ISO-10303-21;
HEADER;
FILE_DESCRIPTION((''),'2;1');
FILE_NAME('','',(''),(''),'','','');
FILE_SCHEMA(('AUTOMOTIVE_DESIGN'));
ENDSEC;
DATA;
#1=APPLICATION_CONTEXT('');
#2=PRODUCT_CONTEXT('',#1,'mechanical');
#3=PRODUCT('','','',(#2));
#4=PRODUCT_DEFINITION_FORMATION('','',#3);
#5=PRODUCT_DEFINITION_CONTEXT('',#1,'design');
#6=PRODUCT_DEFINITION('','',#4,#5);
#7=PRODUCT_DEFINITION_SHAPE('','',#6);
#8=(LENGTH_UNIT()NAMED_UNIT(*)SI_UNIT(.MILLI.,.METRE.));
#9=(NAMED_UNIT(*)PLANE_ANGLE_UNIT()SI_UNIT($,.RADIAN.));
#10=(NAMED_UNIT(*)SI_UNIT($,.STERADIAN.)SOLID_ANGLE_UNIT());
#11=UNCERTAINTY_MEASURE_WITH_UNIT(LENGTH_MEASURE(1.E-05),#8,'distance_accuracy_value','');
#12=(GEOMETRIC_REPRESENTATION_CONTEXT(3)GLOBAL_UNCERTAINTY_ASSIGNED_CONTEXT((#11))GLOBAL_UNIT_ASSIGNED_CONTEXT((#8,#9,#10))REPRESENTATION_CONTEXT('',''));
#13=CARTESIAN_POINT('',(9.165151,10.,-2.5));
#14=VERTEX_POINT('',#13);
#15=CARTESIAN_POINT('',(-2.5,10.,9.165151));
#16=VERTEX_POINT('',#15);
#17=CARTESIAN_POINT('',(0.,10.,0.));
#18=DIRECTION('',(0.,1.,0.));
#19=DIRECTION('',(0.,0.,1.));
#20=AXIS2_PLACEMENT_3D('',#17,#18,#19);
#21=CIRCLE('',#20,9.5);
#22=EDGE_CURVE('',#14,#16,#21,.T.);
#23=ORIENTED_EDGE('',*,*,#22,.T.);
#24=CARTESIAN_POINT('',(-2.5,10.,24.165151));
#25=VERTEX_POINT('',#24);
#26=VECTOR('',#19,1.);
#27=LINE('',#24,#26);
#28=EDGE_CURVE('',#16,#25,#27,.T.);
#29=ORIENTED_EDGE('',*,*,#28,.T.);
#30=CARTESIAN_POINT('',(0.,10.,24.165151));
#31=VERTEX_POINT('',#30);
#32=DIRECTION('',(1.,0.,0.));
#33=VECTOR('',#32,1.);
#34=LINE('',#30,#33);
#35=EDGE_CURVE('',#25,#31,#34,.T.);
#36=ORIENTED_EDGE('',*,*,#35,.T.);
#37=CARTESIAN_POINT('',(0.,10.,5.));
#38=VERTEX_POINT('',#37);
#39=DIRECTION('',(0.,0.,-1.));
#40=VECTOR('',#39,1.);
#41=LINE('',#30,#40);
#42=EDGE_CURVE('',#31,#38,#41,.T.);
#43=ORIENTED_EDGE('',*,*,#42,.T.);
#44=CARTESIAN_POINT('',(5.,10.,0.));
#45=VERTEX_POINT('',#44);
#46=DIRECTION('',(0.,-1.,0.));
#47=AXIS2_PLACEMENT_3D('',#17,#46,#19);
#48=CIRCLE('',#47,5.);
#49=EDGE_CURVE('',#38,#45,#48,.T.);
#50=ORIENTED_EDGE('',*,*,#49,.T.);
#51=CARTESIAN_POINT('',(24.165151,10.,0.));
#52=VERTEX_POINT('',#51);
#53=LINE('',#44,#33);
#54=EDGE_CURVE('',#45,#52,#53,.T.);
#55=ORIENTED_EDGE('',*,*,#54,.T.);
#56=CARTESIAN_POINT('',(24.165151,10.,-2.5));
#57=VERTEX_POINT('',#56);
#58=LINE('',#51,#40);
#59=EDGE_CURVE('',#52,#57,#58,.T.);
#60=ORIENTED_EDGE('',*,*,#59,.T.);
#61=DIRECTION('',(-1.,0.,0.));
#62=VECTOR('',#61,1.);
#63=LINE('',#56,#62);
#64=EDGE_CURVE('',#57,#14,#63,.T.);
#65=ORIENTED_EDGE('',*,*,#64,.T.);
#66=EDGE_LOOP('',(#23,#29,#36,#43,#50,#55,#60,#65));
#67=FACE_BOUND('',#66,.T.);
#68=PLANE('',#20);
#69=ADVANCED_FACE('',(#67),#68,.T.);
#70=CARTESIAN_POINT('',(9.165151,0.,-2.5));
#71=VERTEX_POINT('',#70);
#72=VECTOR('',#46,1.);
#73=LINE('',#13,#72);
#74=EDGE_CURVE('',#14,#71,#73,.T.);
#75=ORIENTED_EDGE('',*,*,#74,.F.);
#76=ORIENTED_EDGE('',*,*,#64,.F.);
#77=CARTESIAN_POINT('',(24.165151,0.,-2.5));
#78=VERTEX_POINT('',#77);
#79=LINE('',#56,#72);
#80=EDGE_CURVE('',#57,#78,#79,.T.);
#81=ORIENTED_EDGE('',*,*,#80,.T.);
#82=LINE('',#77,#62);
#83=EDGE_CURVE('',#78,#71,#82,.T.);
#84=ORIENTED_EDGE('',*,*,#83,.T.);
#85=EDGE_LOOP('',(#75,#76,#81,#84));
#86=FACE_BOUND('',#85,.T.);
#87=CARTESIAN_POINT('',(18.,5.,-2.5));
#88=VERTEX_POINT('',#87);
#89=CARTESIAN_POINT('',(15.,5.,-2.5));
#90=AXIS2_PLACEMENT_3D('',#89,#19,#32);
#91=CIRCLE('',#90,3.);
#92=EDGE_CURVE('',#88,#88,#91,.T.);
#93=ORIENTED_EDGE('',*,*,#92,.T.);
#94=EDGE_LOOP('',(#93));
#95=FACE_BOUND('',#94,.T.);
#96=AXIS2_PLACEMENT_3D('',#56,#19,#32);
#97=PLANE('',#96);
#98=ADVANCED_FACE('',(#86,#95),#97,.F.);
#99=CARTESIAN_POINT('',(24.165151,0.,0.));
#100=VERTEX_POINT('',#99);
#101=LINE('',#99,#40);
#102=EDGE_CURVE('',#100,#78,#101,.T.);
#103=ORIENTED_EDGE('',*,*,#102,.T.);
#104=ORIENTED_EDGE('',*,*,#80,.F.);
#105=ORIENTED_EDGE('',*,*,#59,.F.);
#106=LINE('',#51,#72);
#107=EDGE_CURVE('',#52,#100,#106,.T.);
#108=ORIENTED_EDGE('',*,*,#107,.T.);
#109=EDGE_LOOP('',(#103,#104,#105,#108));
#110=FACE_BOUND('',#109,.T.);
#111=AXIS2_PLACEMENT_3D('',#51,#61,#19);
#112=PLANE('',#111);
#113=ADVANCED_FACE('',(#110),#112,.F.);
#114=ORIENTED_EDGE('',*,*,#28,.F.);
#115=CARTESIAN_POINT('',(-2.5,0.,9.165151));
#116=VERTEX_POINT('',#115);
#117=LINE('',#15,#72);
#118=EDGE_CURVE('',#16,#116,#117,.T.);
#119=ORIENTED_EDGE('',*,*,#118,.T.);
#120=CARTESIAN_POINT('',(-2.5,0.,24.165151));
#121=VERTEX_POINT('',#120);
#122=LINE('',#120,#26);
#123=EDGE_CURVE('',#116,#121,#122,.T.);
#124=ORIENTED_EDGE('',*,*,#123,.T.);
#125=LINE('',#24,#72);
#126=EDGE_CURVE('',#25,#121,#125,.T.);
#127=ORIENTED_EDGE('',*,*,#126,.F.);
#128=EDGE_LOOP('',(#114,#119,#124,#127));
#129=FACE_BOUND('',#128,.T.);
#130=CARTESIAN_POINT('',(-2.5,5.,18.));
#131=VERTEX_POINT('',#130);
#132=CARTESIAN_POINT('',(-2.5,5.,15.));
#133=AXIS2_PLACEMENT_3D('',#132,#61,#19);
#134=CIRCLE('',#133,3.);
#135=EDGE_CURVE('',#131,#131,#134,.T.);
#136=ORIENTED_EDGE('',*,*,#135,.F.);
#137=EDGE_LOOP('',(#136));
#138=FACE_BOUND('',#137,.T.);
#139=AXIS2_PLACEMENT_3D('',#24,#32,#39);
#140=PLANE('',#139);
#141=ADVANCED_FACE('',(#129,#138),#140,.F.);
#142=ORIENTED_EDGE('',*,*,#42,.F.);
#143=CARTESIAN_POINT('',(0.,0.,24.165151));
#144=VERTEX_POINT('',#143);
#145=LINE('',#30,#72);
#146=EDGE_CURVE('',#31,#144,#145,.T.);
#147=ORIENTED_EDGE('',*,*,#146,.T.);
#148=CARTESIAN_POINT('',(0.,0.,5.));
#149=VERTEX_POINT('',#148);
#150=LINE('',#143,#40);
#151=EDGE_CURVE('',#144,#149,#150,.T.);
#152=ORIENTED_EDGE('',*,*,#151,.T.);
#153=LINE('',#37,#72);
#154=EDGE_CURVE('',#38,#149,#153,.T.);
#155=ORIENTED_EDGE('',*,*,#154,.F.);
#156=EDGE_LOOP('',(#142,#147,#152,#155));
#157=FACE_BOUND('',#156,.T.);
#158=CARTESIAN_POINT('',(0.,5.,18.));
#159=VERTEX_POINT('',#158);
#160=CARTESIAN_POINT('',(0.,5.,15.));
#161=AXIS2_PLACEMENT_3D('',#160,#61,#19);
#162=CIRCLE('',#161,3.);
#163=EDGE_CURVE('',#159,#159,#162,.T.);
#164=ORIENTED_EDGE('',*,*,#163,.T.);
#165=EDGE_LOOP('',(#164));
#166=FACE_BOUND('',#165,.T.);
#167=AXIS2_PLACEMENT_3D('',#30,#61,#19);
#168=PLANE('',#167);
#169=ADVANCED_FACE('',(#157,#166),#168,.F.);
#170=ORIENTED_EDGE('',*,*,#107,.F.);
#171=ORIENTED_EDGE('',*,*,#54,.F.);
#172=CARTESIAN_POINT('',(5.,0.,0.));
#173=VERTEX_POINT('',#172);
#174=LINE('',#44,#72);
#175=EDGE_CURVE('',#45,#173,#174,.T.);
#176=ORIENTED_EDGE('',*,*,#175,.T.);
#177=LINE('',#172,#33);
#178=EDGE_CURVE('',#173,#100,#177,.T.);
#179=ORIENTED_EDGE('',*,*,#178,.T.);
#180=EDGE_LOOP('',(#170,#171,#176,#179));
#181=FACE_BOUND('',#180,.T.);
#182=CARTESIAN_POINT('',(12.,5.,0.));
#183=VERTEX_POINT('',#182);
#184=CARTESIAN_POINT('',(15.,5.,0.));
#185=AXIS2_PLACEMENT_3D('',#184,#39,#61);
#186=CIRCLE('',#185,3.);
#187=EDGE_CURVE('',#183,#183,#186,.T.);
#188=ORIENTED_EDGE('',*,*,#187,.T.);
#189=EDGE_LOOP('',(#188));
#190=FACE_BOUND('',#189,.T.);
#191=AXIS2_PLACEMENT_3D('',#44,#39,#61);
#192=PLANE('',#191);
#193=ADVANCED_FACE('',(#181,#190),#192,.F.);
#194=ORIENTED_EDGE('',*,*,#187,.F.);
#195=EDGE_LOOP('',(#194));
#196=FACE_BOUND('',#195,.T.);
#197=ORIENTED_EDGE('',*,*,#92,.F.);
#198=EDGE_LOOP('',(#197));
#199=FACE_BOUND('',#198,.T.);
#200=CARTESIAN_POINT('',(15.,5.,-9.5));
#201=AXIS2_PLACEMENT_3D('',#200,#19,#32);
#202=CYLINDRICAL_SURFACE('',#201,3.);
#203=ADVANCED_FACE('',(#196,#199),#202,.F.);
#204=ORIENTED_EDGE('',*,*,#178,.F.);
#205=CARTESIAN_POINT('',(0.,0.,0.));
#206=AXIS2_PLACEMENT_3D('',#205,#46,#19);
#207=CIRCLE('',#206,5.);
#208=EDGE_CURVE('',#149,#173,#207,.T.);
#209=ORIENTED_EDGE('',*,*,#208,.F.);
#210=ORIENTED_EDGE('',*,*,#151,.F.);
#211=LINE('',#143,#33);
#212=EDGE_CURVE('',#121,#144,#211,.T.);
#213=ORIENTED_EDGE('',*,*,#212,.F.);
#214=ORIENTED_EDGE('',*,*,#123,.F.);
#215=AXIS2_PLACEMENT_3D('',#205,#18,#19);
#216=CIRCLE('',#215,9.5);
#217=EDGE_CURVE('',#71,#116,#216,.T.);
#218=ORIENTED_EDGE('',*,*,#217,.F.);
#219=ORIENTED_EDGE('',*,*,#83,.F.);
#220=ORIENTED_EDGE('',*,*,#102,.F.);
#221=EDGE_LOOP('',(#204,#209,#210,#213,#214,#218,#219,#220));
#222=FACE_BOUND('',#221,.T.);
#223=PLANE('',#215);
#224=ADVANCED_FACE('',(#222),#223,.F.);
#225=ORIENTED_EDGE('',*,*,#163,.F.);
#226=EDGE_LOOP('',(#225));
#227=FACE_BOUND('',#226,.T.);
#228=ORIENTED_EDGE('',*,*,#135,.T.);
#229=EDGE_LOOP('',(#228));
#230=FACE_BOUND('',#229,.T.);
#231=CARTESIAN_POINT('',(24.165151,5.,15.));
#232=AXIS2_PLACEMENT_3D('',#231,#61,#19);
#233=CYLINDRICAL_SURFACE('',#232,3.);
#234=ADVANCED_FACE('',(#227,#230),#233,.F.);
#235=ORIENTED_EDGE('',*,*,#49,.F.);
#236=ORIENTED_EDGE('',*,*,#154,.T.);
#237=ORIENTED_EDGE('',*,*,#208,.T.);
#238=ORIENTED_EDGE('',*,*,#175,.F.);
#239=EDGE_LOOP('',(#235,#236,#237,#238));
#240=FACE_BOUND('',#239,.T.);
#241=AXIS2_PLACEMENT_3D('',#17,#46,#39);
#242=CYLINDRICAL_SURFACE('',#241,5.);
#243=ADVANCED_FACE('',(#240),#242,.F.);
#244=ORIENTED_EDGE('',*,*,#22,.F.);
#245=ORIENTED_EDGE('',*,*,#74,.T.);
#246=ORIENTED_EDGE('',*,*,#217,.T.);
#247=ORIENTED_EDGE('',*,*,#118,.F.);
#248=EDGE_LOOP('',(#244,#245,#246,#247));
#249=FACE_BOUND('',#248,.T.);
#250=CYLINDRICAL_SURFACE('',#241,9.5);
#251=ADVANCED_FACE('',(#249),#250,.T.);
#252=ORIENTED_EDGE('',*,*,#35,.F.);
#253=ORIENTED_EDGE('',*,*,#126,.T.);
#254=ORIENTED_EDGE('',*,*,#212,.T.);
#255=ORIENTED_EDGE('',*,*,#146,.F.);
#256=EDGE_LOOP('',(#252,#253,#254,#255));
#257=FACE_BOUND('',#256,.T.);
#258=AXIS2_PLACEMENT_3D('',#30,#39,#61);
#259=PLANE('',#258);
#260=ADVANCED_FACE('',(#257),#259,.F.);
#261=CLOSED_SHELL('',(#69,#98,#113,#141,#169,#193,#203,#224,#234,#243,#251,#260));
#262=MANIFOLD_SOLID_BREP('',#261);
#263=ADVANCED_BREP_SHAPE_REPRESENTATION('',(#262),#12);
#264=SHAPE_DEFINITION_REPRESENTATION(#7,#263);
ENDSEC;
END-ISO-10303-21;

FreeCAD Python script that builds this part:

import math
import FreeCAD as App
import Part
import Sketcher
from FreeCAD import Vector

doc = App.newDocument("Part")
body = doc.addObject("PartDesign::Body", "Body")

sketch1 = doc.addObject("Sketcher::SketchObject", "Sketch")
body.addObject(sketch1)
sketch1.AttachmentSupport = (doc.XZ_Plane, [""])
sketch1.MapMode = "FlatFace"
sketch1.addGeometry([
    Part.LineSegment(Vector(0, 24.165151, 0), Vector(0, 5, 0)),
    Part.ArcOfCircle(Part.Circle(Vector(0, 0, 0), Vector(0, 0, 1), 5), math.radians(90), math.radians(360)),
    Part.LineSegment(Vector(5, 0, 0), Vector(24.165151, 0, 0)),
    Part.LineSegment(Vector(24.165151, 0, 0), Vector(24.165151, -2.5, 0)),
    Part.LineSegment(Vector(24.165151, -2.5, 0), Vector(9.165151, -2.5, 0)),
    Part.ArcOfCircle(Part.Circle(Vector(0, 0, 0), Vector(0, 0, 1), 9.5), math.radians(105.257523), math.radians(344.742477)),
    Part.LineSegment(Vector(-2.5, 9.165151, 0), Vector(-2.5, 24.165151, 0)),
    Part.LineSegment(Vector(-2.5, 24.165151, 0), Vector(0, 24.165151, 0)),
], False)
sketch1.addConstraint([
    Sketcher.Constraint("Coincident", 0, 2, 1, 1),
    Sketcher.Constraint("Coincident", 1, 2, 2, 1),
    Sketcher.Constraint("Coincident", 2, 2, 3, 1),
    Sketcher.Constraint("Coincident", 3, 2, 4, 1),
    Sketcher.Constraint("Coincident", 4, 2, 5, 2),
    Sketcher.Constraint("Coincident", 5, 1, 6, 1),
    Sketcher.Constraint("Coincident", 6, 2, 7, 1),
    Sketcher.Constraint("Coincident", 7, 2, 0, 1),
    Sketcher.Constraint("Vertical", 0),
    Sketcher.Constraint("Horizontal", 2),
    Sketcher.Constraint("Vertical", 3),
    Sketcher.Constraint("Horizontal", 4),
    Sketcher.Constraint("Vertical", 6),
    Sketcher.Constraint("Horizontal", 7),
    Sketcher.Constraint("Coincident", 1, 3, -1, 1),
    Sketcher.Constraint("Coincident", 5, 3, -1, 1),
    Sketcher.Constraint("PointOnObject", 0, 2, -2),
    Sketcher.Constraint("PointOnObject", 1, 2, -1),
    Sketcher.Constraint("Equal", 2, 0),
    Sketcher.Constraint("Equal", 7, 3),
    Sketcher.Constraint("Radius", 1, 5.0),
    Sketcher.Constraint("Radius", 5, 9.5),
    Sketcher.Constraint("DistanceX", 4, 2, 4, 1, 15.0),
    Sketcher.Constraint("DistanceX", 7, 1, 7, 2, 2.5),
])
pad1 = doc.addObject("PartDesign::Pad", "Pad")
body.addObject(pad1)
pad1.Profile = sketch1
pad1.Length = 10
pad1.Reversed = True

sketch2 = doc.addObject("Sketcher::SketchObject", "Sketch001")
body.addObject(sketch2)
sketch2.AttachmentSupport = (doc.YZ_Plane, [""])
sketch2.MapMode = "FlatFace"
sketch2.AttachmentOffset = App.Placement(Vector(0, 0, -2.5), App.Rotation())
sketch2.addGeometry(Part.Circle(Vector(5, 15, 0), Vector(0, 0, 1), 3), False)
sketch2.addConstraint([
    Sketcher.Constraint("Diameter", 0, 6.0),
    Sketcher.Constraint("DistanceX", -1, 1, 0, 3, 5.0),
    Sketcher.Constraint("DistanceY", -1, 1, 0, 3, 15.0),
])
pocket1 = doc.addObject("PartDesign::Pocket", "Pocket")
body.addObject(pocket1)
pocket1.Profile = sketch2
pocket1.Type = "ThroughAll"
pocket1.Reversed = True
doc.recompute()

polarpattern = doc.addObject("PartDesign::PolarPattern", "PolarPattern")
body.addObject(polarpattern)
polarpattern.Originals = [pocket1]
polarpattern.Axis = (doc.Y_Axis, [""])
polarpattern.Angle = 90
polarpattern.Occurrences = 2
body.Tip = polarpattern

doc.recompute()
